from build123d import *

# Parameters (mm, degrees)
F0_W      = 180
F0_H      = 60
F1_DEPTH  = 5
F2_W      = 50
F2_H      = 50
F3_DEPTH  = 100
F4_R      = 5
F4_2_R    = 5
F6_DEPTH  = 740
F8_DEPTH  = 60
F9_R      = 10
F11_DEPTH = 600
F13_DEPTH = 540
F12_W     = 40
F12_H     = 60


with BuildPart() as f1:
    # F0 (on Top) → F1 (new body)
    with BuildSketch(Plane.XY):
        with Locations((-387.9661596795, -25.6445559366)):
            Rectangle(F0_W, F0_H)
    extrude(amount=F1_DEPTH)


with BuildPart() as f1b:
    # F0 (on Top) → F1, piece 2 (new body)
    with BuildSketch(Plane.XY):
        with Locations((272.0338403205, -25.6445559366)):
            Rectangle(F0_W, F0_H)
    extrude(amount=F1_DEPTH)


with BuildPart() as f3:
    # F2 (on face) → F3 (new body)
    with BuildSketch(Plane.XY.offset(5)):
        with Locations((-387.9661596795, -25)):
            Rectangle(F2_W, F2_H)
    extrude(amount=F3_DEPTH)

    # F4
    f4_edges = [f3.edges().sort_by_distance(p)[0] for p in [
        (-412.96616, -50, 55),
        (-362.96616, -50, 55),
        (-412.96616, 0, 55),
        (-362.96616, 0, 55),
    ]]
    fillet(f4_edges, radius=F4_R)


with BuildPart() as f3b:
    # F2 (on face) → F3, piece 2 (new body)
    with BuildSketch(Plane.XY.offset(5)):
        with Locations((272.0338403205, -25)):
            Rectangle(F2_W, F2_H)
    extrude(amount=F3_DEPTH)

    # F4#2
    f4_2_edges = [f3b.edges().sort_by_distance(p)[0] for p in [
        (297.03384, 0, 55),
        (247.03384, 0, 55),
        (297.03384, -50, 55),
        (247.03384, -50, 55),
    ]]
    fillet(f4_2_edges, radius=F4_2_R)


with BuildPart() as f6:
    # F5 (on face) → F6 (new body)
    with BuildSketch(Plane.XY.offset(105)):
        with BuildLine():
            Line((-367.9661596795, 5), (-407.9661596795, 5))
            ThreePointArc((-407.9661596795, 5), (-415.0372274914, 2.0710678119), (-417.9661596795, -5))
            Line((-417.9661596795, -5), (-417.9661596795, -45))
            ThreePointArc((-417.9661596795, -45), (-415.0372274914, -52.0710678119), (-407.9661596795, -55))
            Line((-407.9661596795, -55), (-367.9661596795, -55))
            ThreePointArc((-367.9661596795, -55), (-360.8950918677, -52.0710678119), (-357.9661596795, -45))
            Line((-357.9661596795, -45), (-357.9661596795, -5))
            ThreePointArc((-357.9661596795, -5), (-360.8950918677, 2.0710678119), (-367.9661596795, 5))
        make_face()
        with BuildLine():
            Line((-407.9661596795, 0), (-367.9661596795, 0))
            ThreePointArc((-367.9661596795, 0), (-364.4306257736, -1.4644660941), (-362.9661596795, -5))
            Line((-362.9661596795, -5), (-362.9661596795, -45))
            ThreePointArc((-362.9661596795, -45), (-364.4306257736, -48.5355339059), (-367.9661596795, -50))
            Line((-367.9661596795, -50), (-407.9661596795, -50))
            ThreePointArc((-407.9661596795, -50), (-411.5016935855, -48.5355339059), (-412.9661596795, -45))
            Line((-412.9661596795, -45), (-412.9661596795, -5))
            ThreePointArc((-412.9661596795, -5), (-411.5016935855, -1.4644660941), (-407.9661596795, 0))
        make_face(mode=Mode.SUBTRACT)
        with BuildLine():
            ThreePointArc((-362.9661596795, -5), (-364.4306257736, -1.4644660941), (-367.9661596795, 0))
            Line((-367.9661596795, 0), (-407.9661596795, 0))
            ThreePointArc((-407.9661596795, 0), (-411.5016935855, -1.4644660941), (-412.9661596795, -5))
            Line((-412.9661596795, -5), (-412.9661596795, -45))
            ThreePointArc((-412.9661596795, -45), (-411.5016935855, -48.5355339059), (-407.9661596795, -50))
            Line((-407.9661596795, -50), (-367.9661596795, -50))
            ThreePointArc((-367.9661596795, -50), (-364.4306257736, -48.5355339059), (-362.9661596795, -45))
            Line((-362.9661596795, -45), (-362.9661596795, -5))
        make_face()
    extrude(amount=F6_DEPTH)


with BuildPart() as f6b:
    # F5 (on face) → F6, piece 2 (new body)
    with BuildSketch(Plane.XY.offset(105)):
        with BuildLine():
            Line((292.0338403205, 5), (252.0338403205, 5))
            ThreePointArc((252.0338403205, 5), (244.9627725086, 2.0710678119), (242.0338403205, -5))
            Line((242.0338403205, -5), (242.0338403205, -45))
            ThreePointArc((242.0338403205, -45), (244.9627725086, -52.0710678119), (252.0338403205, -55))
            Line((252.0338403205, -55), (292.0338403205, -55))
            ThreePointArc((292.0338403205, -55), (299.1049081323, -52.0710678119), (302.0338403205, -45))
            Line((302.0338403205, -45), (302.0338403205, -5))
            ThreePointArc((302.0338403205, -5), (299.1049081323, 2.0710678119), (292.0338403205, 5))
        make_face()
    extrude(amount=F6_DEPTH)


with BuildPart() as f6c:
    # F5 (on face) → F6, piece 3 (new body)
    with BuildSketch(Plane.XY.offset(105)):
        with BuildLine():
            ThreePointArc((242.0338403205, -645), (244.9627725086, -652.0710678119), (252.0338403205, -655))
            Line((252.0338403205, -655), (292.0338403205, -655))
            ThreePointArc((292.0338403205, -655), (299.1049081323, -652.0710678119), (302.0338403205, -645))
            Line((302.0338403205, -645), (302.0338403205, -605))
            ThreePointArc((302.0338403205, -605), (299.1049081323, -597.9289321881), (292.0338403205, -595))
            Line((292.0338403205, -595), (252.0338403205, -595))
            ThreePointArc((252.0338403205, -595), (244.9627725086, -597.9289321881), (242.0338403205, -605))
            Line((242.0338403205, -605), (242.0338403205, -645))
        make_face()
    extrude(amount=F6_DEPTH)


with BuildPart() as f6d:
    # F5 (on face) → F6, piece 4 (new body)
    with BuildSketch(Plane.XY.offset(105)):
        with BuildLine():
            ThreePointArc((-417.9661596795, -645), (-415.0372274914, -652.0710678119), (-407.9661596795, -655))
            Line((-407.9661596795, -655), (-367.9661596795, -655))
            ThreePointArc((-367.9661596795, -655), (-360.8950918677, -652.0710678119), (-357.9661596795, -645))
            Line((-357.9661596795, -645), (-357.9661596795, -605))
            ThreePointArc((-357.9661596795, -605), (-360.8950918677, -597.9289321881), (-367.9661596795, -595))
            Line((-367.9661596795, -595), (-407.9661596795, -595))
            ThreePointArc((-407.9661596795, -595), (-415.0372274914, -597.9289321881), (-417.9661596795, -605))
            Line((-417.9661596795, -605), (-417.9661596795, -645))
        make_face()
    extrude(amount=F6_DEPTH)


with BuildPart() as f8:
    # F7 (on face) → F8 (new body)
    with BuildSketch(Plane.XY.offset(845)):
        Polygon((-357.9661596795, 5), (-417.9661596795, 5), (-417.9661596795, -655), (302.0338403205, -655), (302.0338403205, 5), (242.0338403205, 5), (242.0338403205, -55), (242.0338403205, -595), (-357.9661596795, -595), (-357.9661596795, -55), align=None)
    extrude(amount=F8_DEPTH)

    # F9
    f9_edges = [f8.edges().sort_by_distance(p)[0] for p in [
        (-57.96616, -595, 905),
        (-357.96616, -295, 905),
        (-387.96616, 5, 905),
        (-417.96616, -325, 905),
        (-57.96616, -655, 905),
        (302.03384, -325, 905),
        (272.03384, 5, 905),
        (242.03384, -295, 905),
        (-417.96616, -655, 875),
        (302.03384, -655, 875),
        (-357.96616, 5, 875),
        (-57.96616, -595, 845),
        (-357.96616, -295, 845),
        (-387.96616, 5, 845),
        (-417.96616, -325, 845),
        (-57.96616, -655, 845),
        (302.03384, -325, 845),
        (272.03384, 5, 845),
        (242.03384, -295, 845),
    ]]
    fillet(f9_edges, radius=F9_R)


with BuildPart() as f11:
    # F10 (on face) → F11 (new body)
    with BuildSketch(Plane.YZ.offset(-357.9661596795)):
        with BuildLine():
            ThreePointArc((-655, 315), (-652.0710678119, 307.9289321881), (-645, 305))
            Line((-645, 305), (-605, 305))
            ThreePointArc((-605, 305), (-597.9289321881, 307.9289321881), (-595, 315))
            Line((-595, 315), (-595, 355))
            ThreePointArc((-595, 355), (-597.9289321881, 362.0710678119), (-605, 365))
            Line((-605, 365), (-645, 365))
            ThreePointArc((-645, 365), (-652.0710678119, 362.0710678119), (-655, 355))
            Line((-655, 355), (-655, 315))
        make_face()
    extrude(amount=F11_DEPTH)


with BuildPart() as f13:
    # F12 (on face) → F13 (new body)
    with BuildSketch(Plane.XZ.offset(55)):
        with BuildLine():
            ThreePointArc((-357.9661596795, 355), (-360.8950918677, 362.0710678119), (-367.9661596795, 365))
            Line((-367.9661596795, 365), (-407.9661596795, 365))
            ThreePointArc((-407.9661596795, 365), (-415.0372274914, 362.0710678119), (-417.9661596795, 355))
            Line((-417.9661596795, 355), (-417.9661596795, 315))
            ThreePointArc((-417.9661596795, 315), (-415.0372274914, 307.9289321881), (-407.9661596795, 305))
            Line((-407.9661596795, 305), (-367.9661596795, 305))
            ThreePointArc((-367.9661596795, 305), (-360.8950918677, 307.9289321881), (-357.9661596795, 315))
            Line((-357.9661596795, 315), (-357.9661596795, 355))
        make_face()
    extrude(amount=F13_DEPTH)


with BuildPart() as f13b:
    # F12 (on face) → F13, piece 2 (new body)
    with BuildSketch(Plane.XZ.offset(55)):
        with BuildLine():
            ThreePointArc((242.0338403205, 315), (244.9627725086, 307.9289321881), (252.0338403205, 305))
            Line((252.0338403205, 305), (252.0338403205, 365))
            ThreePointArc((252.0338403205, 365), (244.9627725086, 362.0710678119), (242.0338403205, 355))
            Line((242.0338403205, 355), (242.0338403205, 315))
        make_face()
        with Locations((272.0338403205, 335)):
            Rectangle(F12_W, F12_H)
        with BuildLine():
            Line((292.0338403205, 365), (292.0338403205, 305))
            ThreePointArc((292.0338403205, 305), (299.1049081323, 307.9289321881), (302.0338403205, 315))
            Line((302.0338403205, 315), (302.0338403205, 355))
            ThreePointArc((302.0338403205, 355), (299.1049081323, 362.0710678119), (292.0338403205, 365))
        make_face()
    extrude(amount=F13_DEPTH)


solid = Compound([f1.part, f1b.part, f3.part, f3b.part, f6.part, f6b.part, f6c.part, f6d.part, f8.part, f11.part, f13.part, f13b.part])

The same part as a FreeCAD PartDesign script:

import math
import FreeCAD as App
import Part
import Sketcher
Q = App.Units.Quantity


def edges_at(feature, points):
    """Names of the edges that pass closest to the given points."""
    edges = feature.Shape.Edges
    near = lambda p: min(range(len(edges)), key=lambda i: edges[i].distToShape(Part.Vertex(*p))[0])
    return sorted({f"Edge{near(p) + 1}" for p in points})

doc = App.newDocument("Part")
body = doc.addObject("PartDesign::Body", "Body")

# Sketch on XY plane
sketch1 = doc.addObject("Sketcher::SketchObject", "Sketch")
body.addObject(sketch1)
sketch1.AttachmentSupport = (doc.XY_Plane, [""])
sketch1.MapMode = "FlatFace"
sketch1.addGeometry([
    Part.LineSegment(App.Vector(-478, 4, 0), App.Vector(-478, -56, 0)),
    Part.LineSegment(App.Vector(-478, -56, 0), App.Vector(-298, -56, 0)),
    Part.LineSegment(App.Vector(-298, -56, 0), App.Vector(-298, 4, 0)),
    Part.LineSegment(App.Vector(-298, 4, 0), App.Vector(-478, 4, 0)),
], False)
sketch1.addConstraint([
    Sketcher.Constraint("Coincident", 0, 2, 1, 1),
    Sketcher.Constraint("Coincident", 1, 2, 2, 1),
    Sketcher.Constraint("Coincident", 2, 2, 3, 1),
    Sketcher.Constraint("Coincident", 3, 2, 0, 1),
    Sketcher.Constraint("Vertical", 0),
    Sketcher.Constraint("Horizontal", 1),
    Sketcher.Constraint("Vertical", 2),
    Sketcher.Constraint("Horizontal", 3),
    Sketcher.Constraint("DistanceX", 1, 1, 1, 2, Q("180 mm")),
    Sketcher.Constraint("DistanceY", 0, 2, 0, 1, Q("60 mm")),
    Sketcher.Constraint("DistanceX", 0, 2, -1, 1, Q("477.96616 mm")),
    Sketcher.Constraint("DistanceY", 0, 2, -1, 1, Q("55.644556 mm")),
])
pad1 = doc.addObject("PartDesign::Pad", "Pad")
body.addObject(pad1)
pad1.Profile = sketch1
pad1.Length = 5
body2 = doc.addObject("PartDesign::Body", "Body001")

# Sketch on XY plane
sketch2 = doc.addObject("Sketcher::SketchObject", "Sketch001")
body2.addObject(sketch2)
sketch2.AttachmentSupport = (doc.getObject("XY_Plane001"), [""])
sketch2.MapMode = "FlatFace"
sketch2.addGeometry([
    Part.LineSegment(App.Vector(182, 4, 0), App.Vector(182, -56, 0)),
    Part.LineSegment(App.Vector(182, -56, 0), App.Vector(362, -56, 0)),
    Part.LineSegment(App.Vector(362, -56, 0), App.Vector(362, 4, 0)),
    Part.LineSegment(App.Vector(362, 4, 0), App.Vector(182, 4, 0)),
], False)
sketch2.addConstraint([
    Sketcher.Constraint("Coincident", 0, 2, 1, 1),
    Sketcher.Constraint("Coincident", 1, 2, 2, 1),
    Sketcher.Constraint("Coincident", 2, 2, 3, 1),
    Sketcher.Constraint("Coincident", 3, 2, 0, 1),
    Sketcher.Constraint("Vertical", 0),
    Sketcher.Constraint("Horizontal", 1),
    Sketcher.Constraint("Vertical", 2),
    Sketcher.Constraint("Horizontal", 3),
    Sketcher.Constraint("DistanceX", 1, 1, 1, 2, Q("180 mm")),
    Sketcher.Constraint("DistanceY", 0, 2, 0, 1, Q("60 mm")),
    Sketcher.Constraint("DistanceX", -1, 1, 0, 2, Q("182.03384 mm")),
    Sketcher.Constraint("DistanceY", 0, 2, -1, 1, Q("55.644556 mm")),
])
pad2 = doc.addObject("PartDesign::Pad", "Pad001")
body2.addObject(pad2)
pad2.Profile = sketch2
pad2.Length = 5
body3 = doc.addObject("PartDesign::Body", "Body002")

# Sketch on XY plane
sketch3 = doc.addObject("Sketcher::SketchObject", "Sketch002")
body3.addObject(sketch3)
sketch3.AttachmentSupport = (doc.getObject("XY_Plane002"), [""])
sketch3.MapMode = "FlatFace"
sketch3.AttachmentOffset = App.Placement(App.Vector(0, 0, 5), App.Rotation())
sketch3.addGeometry([
    Part.LineSegment(App.Vector(-413, 0, 0), App.Vector(-413, -50, 0)),
    Part.LineSegment(App.Vector(-413, -50, 0), App.Vector(-363, -50, 0)),
    Part.LineSegment(App.Vector(-363, -50, 0), App.Vector(-363, 0, 0)),
    Part.LineSegment(App.Vector(-363, 0, 0), App.Vector(-413, 0, 0)),
], False)
sketch3.addConstraint([
    Sketcher.Constraint("Coincident", 0, 2, 1, 1),
    Sketcher.Constraint("Coincident", 1, 2, 2, 1),
    Sketcher.Constraint("Coincident", 2, 2, 3, 1),
    Sketcher.Constraint("Coincident", 3, 2, 0, 1),
    Sketcher.Constraint("Vertical", 0),
    Sketcher.Constraint("Horizontal", 1),
    Sketcher.Constraint("Vertical", 2),
    Sketcher.Constraint("Horizontal", 3),
    Sketcher.Constraint("PointOnObject", 2, 2, -1),
    Sketcher.Constraint("Equal", 3, 0),
    Sketcher.Constraint("DistanceX", 1, 1, 1, 2, Q("50 mm")),
    Sketcher.Constraint("DistanceX", 0, 2, -1, 1, Q("412.96616 mm")),
])
pad3 = doc.addObject("PartDesign::Pad", "Pad002")
body3.addObject(pad3)
pad3.Profile = sketch3
pad3.Length = 100
doc.recompute()

fillet = doc.addObject("PartDesign::Fillet", "Fillet")
body3.addObject(fillet)
fillet.Base = (pad3, edges_at(pad3, [
    (-412.966, -50, 55),
    (-362.966, -50, 55),
    (-412.966, 0, 55),
    (-362.966, 0, 55),
]))
fillet.Radius = 5
body4 = doc.addObject("PartDesign::Body", "Body003")

# Sketch on XY plane
sketch4 = doc.addObject("Sketcher::SketchObject", "Sketch003")
body4.addObject(sketch4)
sketch4.AttachmentSupport = (doc.getObject("XY_Plane003"), [""])
sketch4.MapMode = "FlatFace"
sketch4.AttachmentOffset = App.Placement(App.Vector(0, 0, 5), App.Rotation())
sketch4.addGeometry([
    Part.LineSegment(App.Vector(247, 0, 0), App.Vector(247, -50, 0)),
    Part.LineSegment(App.Vector(247, -50, 0), App.Vector(297, -50, 0)),
    Part.LineSegment(App.Vector(297, -50, 0), App.Vector(297, 0, 0)),
    Part.LineSegment(App.Vector(297, 0, 0), App.Vector(247, 0, 0)),
], False)
sketch4.addConstraint([
    Sketcher.Constraint("Coincident", 0, 2, 1, 1),
    Sketcher.Constraint("Coincident", 1, 2, 2, 1),
    Sketcher.Constraint("Coincident", 2, 2, 3, 1),
    Sketcher.Constraint("Coincident", 3, 2, 0, 1),
    Sketcher.Constraint("Vertical", 0),
    Sketcher.Constraint("Horizontal", 1),
    Sketcher.Constraint("Vertical", 2),
    Sketcher.Constraint("Horizontal", 3),
    Sketcher.Constraint("PointOnObject", 2, 2, -1),
    Sketcher.Constraint("Equal", 3, 0),
    Sketcher.Constraint("DistanceX", 1, 1, 1, 2, Q("50 mm")),
    Sketcher.Constraint("DistanceX", -1, 1, 0, 2, Q("247.03384 mm")),
])
pad4 = doc.addObject("PartDesign::Pad", "Pad003")
body4.addObject(pad4)
pad4.Profile = sketch4
pad4.Length = 100
doc.recompute()

fillet2 = doc.addObject("PartDesign::Fillet", "Fillet001")
body4.addObject(fillet2)
fillet2.Base = (pad4, edges_at(pad4, [
    (297.034, 0, 55),
    (247.034, 0, 55),
    (297.034, -50, 55),
    (247.034, -50, 55),
]))
fillet2.Radius = 5
body5 = doc.addObject("PartDesign::Body", "Body004")

# Sketch on XY plane
sketch5 = doc.addObject("Sketcher::SketchObject", "Sketch004")
body5.addObject(sketch5)
sketch5.AttachmentSupport = (doc.getObject("XY_Plane004"), [""])
sketch5.MapMode = "FlatFace"
sketch5.AttachmentOffset = App.Placement(App.Vector(0, 0, 105), App.Rotation())
sketch5.addGeometry([
    Part.LineSegment(App.Vector(-368, 5, 0), App.Vector(-408, 5, 0)),  # 0
    Part.ArcOfCircle(Part.Circle(App.Vector(-408, -5, 0), App.Vector(0, 0, 1), 10), math.radians(90), math.radians(180)),  # 1
    Part.LineSegment(App.Vector(-418, -5, 0), App.Vector(-418, -45, 0)),  # 2
    Part.ArcOfCircle(Part.Circle(App.Vector(-408, -45, 0), App.Vector(0, 0, 1), 10), math.radians(180), math.radians(270)),  # 3
    Part.LineSegment(App.Vector(-408, -55, 0), App.Vector(-368, -55, 0)),  # 4
    Part.ArcOfCircle(Part.Circle(App.Vector(-368, -45, 0), App.Vector(0, 0, 1), 10), math.radians(-90), math.radians(0)),  # 5
    Part.LineSegment(App.Vector(-358, -45, 0), App.Vector(-358, -5, 0)),  # 6
    Part.ArcOfCircle(Part.Circle(App.Vector(-368, -5, 0), App.Vector(0, 0, 1), 10), math.radians(0), math.radians(90)),  # 7
], False)
sketch5.addConstraint([
    Sketcher.Constraint("Tangent", 0, 2, 1, 1),
    Sketcher.Constraint("Tangent", 1, 2, 2, 1),
    Sketcher.Constraint("Tangent", 2, 2, 3, 1),
    Sketcher.Constraint("Tangent", 3, 2, 4, 1),
    Sketcher.Constraint("Tangent", 4, 2, 5, 1),
    Sketcher.Constraint("Tangent", 5, 2, 6, 1),
    Sketcher.Constraint("Tangent", 6, 2, 7, 1),
    Sketcher.Constraint("Tangent", 7, 2, 0, 1),
    Sketcher.Constraint("Horizontal", 0),
    Sketcher.Constraint("Vertical", 2),
    Sketcher.Constraint("Horizontal", 4),
    Sketcher.Constraint("Vertical", 6),
    Sketcher.Constraint("Equal", 1, 3),
    Sketcher.Constraint("Equal", 3, 5),
    Sketcher.Constraint("Equal", 5, 7),
    Sketcher.Constraint("Equal", 4, 2),
    Sketcher.Constraint("Radius", 1, Q("10 mm")),
    Sketcher.Constraint("DistanceX", 0, 2, 0, 1, Q("40 mm")),
    Sketcher.Constraint("DistanceY", 1, 3, -1, 1, Q("5 mm")),
    Sketcher.Constraint("DistanceX", 1, 3, -1, 1, Q("407.96616 mm")),
])
pad5 = doc.addObject("PartDesign::Pad", "Pad004")
body5.addObject(pad5)
pad5.Profile = sketch5
pad5.Length = 740
body6 = doc.addObject("PartDesign::Body", "Body005")

# Sketch on XY plane
sketch6 = doc.addObject("Sketcher::SketchObject", "Sketch005")
body6.addObject(sketch6)
sketch6.AttachmentSupport = (doc.getObject("XY_Plane005"), [""])
sketch6.MapMode = "FlatFace"
sketch6.AttachmentOffset = App.Placement(App.Vector(0, 0, 105), App.Rotation())
sketch6.addGeometry([
    Part.LineSegment(App.Vector(292, 5, 0), App.Vector(252, 5, 0)),  # 0
    Part.ArcOfCircle(Part.Circle(App.Vector(252, -5, 0), App.Vector(0, 0, 1), 10), math.radians(90), math.radians(180)),  # 1
    Part.LineSegment(App.Vector(242, -5, 0), App.Vector(242, -45, 0)),  # 2
    Part.ArcOfCircle(Part.Circle(App.Vector(252, -45, 0), App.Vector(0, 0, 1), 10), math.radians(180), math.radians(270)),  # 3
    Part.LineSegment(App.Vector(252, -55, 0), App.Vector(292, -55, 0)),  # 4
    Part.ArcOfCircle(Part.Circle(App.Vector(292, -45, 0), App.Vector(0, 0, 1), 10), math.radians(-90), math.radians(0)),  # 5
    Part.LineSegment(App.Vector(302, -45, 0), App.Vector(302, -5, 0)),  # 6
    Part.ArcOfCircle(Part.Circle(App.Vector(292, -5, 0), App.Vector(0, 0, 1), 10), math.radians(0), math.radians(90)),  # 7
], False)
sketch6.addConstraint([
    Sketcher.Constraint("Tangent", 0, 2, 1, 1),
    Sketcher.Constraint("Tangent", 1, 2, 2, 1),
    Sketcher.Constraint("Tangent", 2, 2, 3, 1),
    Sketcher.Constraint("Tangent", 3, 2, 4, 1),
    Sketcher.Constraint("Tangent", 4, 2, 5, 1),
    Sketcher.Constraint("Tangent", 5, 2, 6, 1),
    Sketcher.Constraint("Tangent", 6, 2, 7, 1),
    Sketcher.Constraint("Tangent", 7, 2, 0, 1),
    Sketcher.Constraint("Horizontal", 0),
    Sketcher.Constraint("Vertical", 2),
    Sketcher.Constraint("Horizontal", 4),
    Sketcher.Constraint("Vertical", 6),
    Sketcher.Constraint("Equal", 1, 3),
    Sketcher.Constraint("Equal", 3, 5),
    Sketcher.Constraint("Equal", 5, 7),
    Sketcher.Constraint("Equal", 4, 2),
    Sketcher.Constraint("Radius", 1, Q("10 mm")),
    Sketcher.Constraint("DistanceX", 0, 2, 0, 1, Q("40 mm")),
    Sketcher.Constraint("DistanceY", 1, 3, -1, 1, Q("5 mm")),
    Sketcher.Constraint("DistanceX", -1, 1, 1, 3, Q("252.03384 mm")),
])
pad6 = doc.addObject("PartDesign::Pad", "Pad005")
body6.addObject(pad6)
pad6.Profile = sketch6
pad6.Length = 740
body7 = doc.addObject("PartDesign::Body", "Body006")

# Sketch on XY plane
sketch7 = doc.addObject("Sketcher::SketchObject", "Sketch006")
body7.addObject(sketch7)
sketch7.AttachmentSupport = (doc.getObject("XY_Plane006"), [""])
sketch7.MapMode = "FlatFace"
sketch7.AttachmentOffset = App.Placement(App.Vector(0, 0, 105), App.Rotation())
sketch7.addGeometry([
    Part.ArcOfCircle(Part.Circle(App.Vector(252, -645, 0), App.Vector(0, 0, 1), 10), math.radians(180), math.radians(270)),  # 0
    Part.LineSegment(App.Vector(252, -655, 0), App.Vector(292, -655, 0)),  # 1
    Part.ArcOfCircle(Part.Circle(App.Vector(292, -645, 0), App.Vector(0, 0, 1), 10), math.radians(-90), math.radians(0)),  # 2
    Part.LineSegment(App.Vector(302, -645, 0), App.Vector(302, -605, 0)),  # 3
    Part.ArcOfCircle(Part.Circle(App.Vector(292, -605, 0), App.Vector(0, 0, 1), 10), math.radians(0), math.radians(90)),  # 4
    Part.LineSegment(App.Vector(292, -595, 0), App.Vector(252, -595, 0)),  # 5
    Part.ArcOfCircle(Part.Circle(App.Vector(252, -605, 0), App.Vector(0, 0, 1), 10), math.radians(90), math.radians(180)),  # 6
    Part.LineSegment(App.Vector(242, -605, 0), App.Vector(242, -645, 0)),  # 7
], False)
sketch7.addConstraint([
    Sketcher.Constraint("Tangent", 0, 2, 1, 1),
    Sketcher.Constraint("Tangent", 1, 2, 2, 1),
    Sketcher.Constraint("Tangent", 2, 2, 3, 1),
    Sketcher.Constraint("Tangent", 3, 2, 4, 1),
    Sketcher.Constraint("Tangent", 4, 2, 5, 1),
    Sketcher.Constraint("Tangent", 5, 2, 6, 1),
    Sketcher.Constraint("Tangent", 6, 2, 7, 1),
    Sketcher.Constraint("Tangent", 7, 2, 0, 1),
    Sketcher.Constraint("Horizontal", 1),
    Sketcher.Constraint("Vertical", 3),
    Sketcher.Constraint("Horizontal", 5),
    Sketcher.Constraint("Vertical", 7),
    Sketcher.Constraint("Equal", 0, 2),
    Sketcher.Constraint("Equal", 2, 4),
    Sketcher.Constraint("Equal", 4, 6),
    Sketcher.Constraint("Equal", 5, 3),
    Sketcher.Constraint("Radius", 0, Q("10 mm")),
    Sketcher.Constraint("DistanceX", 1, 1, 1, 2, Q("40 mm")),
    Sketcher.Constraint("DistanceY", 0, 3, -1, 1, Q("645 mm")),
    Sketcher.Constraint("DistanceX", -1, 1, 0, 3, Q("252.03384 mm")),
])
pad7 = doc.addObject("PartDesign::Pad", "Pad006")
body7.addObject(pad7)
pad7.Profile = sketch7
pad7.Length = 740
body8 = doc.addObject("PartDesign::Body", "Body007")

# Sketch on XY plane
sketch8 = doc.addObject("Sketcher::SketchObject", "Sketch007")
body8.addObject(sketch8)
sketch8.AttachmentSupport = (doc.getObject("XY_Plane007"), [""])
sketch8.MapMode = "FlatFace"
sketch8.AttachmentOffset = App.Placement(App.Vector(0, 0, 105), App.Rotation())
sketch8.addGeometry([
    Part.ArcOfCircle(Part.Circle(App.Vector(-408, -645, 0), App.Vector(0, 0, 1), 10), math.radians(180), math.radians(270)),  # 0
    Part.LineSegment(App.Vector(-408, -655, 0), App.Vector(-368, -655, 0)),  # 1
    Part.ArcOfCircle(Part.Circle(App.Vector(-368, -645, 0), App.Vector(0, 0, 1), 10), math.radians(-90), math.radians(0)),  # 2
    Part.LineSegment(App.Vector(-358, -645, 0), App.Vector(-358, -605, 0)),  # 3
    Part.ArcOfCircle(Part.Circle(App.Vector(-368, -605, 0), App.Vector(0, 0, 1), 10), math.radians(0), math.radians(90)),  # 4
    Part.LineSegment(App.Vector(-368, -595, 0), App.Vector(-408, -595, 0)),  # 5
    Part.ArcOfCircle(Part.Circle(App.Vector(-408, -605, 0), App.Vector(0, 0, 1), 10), math.radians(90), math.radians(180)),  # 6
    Part.LineSegment(App.Vector(-418, -605, 0), App.Vector(-418, -645, 0)),  # 7
], False)
sketch8.addConstraint([
    Sketcher.Constraint("Tangent", 0, 2, 1, 1),
    Sketcher.Constraint("Tangent", 1, 2, 2, 1),
    Sketcher.Constraint("Tangent", 2, 2, 3, 1),
    Sketcher.Constraint("Tangent", 3, 2, 4, 1),
    Sketcher.Constraint("Tangent", 4, 2, 5, 1),
    Sketcher.Constraint("Tangent", 5, 2, 6, 1),
    Sketcher.Constraint("Tangent", 6, 2, 7, 1),
    Sketcher.Constraint("Tangent", 7, 2, 0, 1),
    Sketcher.Constraint("Horizontal", 1),
    Sketcher.Constraint("Vertical", 3),
    Sketcher.Constraint("Horizontal", 5),
    Sketcher.Constraint("Vertical", 7),
    Sketcher.Constraint("Equal", 0, 2),
    Sketcher.Constraint("Equal", 2, 4),
    Sketcher.Constraint("Equal", 4, 6),
    Sketcher.Constraint("Equal", 5, 3),
    Sketcher.Constraint("Radius", 0, Q("10 mm")),
    Sketcher.Constraint("DistanceX", 1, 1, 1, 2, Q("40 mm")),
    Sketcher.Constraint("DistanceY", 0, 3, -1, 1, Q("645 mm")),
    Sketcher.Constraint("DistanceX", 0, 3, -1, 1, Q("407.96616 mm")),
])
pad8 = doc.addObject("PartDesign::Pad", "Pad007")
body8.addObject(pad8)
pad8.Profile = sketch8
pad8.Length = 740
body9 = doc.addObject("PartDesign::Body", "Body008")

# Sketch on XY plane
sketch9 = doc.addObject("Sketcher::SketchObject", "Sketch008")
body9.addObject(sketch9)
sketch9.AttachmentSupport = (doc.getObject("XY_Plane008"), [""])
sketch9.MapMode = "FlatFace"
sketch9.AttachmentOffset = App.Placement(App.Vector(0, 0, 845), App.Rotation())
sketch9.addGeometry([
    Part.LineSegment(App.Vector(-358, 5, 0), App.Vector(-418, 5, 0)),  # 0
    Part.LineSegment(App.Vector(-418, 5, 0), App.Vector(-418, -655, 0)),  # 1
    Part.LineSegment(App.Vector(-418, -655, 0), App.Vector(302, -655, 0)),  # 2
    Part.LineSegment(App.Vector(302, -655, 0), App.Vector(302, 5, 0)),  # 3
    Part.LineSegment(App.Vector(302, 5, 0), App.Vector(242, 5, 0)),  # 4
    Part.LineSegment(App.Vector(242, 5, 0), App.Vector(242, -595, 0)),  # 5
    Part.LineSegment(App.Vector(242, -595, 0), App.Vector(-358, -595, 0)),  # 6
    Part.LineSegment(App.Vector(-358, -595, 0), App.Vector(-358, 5, 0)),  # 7
], False)
sketch9.addConstraint([
    Sketcher.Constraint("Coincident", 0, 2, 1, 1),
    Sketcher.Constraint("Coincident", 1, 2, 2, 1),
    Sketcher.Constraint("Coincident", 2, 2, 3, 1),
    Sketcher.Constraint("Coincident", 3, 2, 4, 1),
    Sketcher.Constraint("Coincident", 4, 2, 5, 1),
    Sketcher.Constraint("Coincident", 5, 2, 6, 1),
    Sketcher.Constraint("Coincident", 6, 2, 7, 1),
    Sketcher.Constraint("Coincident", 7, 2, 0, 1),
    Sketcher.Constraint("Horizontal", 0),
    Sketcher.Constraint("Vertical", 1),
    Sketcher.Constraint("Horizontal", 2),
    Sketcher.Constraint("Vertical", 3),
    Sketcher.Constraint("Horizontal", 4),
    Sketcher.Constraint("Vertical", 5),
    Sketcher.Constraint("Horizontal", 6),
    Sketcher.Constraint("Vertical", 7),
    Sketcher.Constraint("Horizontal", 0, 2, 3, 2),
    Sketcher.Constraint("Equal", 0, 4),
    Sketcher.Constraint("Equal", 6, 5),
    Sketcher.Constraint("DistanceX", 0, 2, 0, 1, Q("60 mm")),
    Sketcher.Constraint("DistanceX", 2, 1, 2, 2, Q("720 mm")),
    Sketcher.Constraint("DistanceY", 1, 2, 1, 1, Q("660 mm")),
    Sketcher.Constraint("DistanceY", -1, 1, 0, 2, Q("5 mm")),
    Sketcher.Constraint("DistanceX", 0, 2, -1, 1, Q("417.96616 mm")),
])
pad9 = doc.addObject("PartDesign::Pad", "Pad008")
body9.addObject(pad9)
pad9.Profile = sketch9
pad9.Length = 60
doc.recompute()

fillet3 = doc.addObject("PartDesign::Fillet", "Fillet002")
body9.addObject(fillet3)
fillet3.Base = (pad9, edges_at(pad9, [
    (-57.966, -595, 905),
    (-357.966, -295, 905),
    (-387.966, 5, 905),
    (-417.966, -325, 905),
    (-57.966, -655, 905),
    (302.034, -325, 905),
    (272.034, 5, 905),
    (242.034, -295, 905),
    (-417.966, -655, 875),
    (302.034, -655, 875),
    (-357.966, 5, 875),
    (-57.966, -595, 845),
    (-357.966, -295, 845),
    (-387.966, 5, 845),
    (-417.966, -325, 845),
    (-57.966, -655, 845),
    (302.034, -325, 845),
    (272.034, 5, 845),
    (242.034, -295, 845),
]))
fillet3.Radius = 10
body10 = doc.addObject("PartDesign::Body", "Body009")

# Sketch on YZ plane
sketch10 = doc.addObject("Sketcher::SketchObject", "Sketch009")
body10.addObject(sketch10)
sketch10.AttachmentSupport = (doc.getObject("YZ_Plane009"), [""])
sketch10.MapMode = "FlatFace"
sketch10.AttachmentOffset = App.Placement(App.Vector(0, 0, -357.96616), App.Rotation())
sketch10.addGeometry([
    Part.ArcOfCircle(Part.Circle(App.Vector(-645, 315, 0), App.Vector(0, 0, 1), 10), math.radians(180), math.radians(270)),  # 0
    Part.LineSegment(App.Vector(-645, 305, 0), App.Vector(-605, 305, 0)),  # 1
    Part.ArcOfCircle(Part.Circle(App.Vector(-605, 315, 0), App.Vector(0, 0, 1), 10), math.radians(-90), math.radians(0)),  # 2
    Part.LineSegment(App.Vector(-595, 315, 0), App.Vector(-595, 355, 0)),  # 3
    Part.ArcOfCircle(Part.Circle(App.Vector(-605, 355, 0), App.Vector(0, 0, 1), 10), math.radians(0), math.radians(90)),  # 4
    Part.LineSegment(App.Vector(-605, 365, 0), App.Vector(-645, 365, 0)),  # 5
    Part.ArcOfCircle(Part.Circle(App.Vector(-645, 355, 0), App.Vector(0, 0, 1), 10), math.radians(90), math.radians(180)),  # 6
    Part.LineSegment(App.Vector(-655, 355, 0), App.Vector(-655, 315, 0)),  # 7
], False)
sketch10.addConstraint([
    Sketcher.Constraint("Tangent", 0, 2, 1, 1),
    Sketcher.Constraint("Tangent", 1, 2, 2, 1),
    Sketcher.Constraint("Tangent", 2, 2, 3, 1),
    Sketcher.Constraint("Tangent", 3, 2, 4, 1),
    Sketcher.Constraint("Tangent", 4, 2, 5, 1),
    Sketcher.Constraint("Tangent", 5, 2, 6, 1),
    Sketcher.Constraint("Tangent", 6, 2, 7, 1),
    Sketcher.Constraint("Tangent", 7, 2, 0, 1),
    Sketcher.Constraint("Horizontal", 1),
    Sketcher.Constraint("Vertical", 3),
    Sketcher.Constraint("Horizontal", 5),
    Sketcher.Constraint("Vertical", 7),
    Sketcher.Constraint("Equal", 0, 2),
    Sketcher.Constraint("Equal", 2, 4),
    Sketcher.Constraint("Equal", 4, 6),
    Sketcher.Constraint("Equal", 5, 3),
    Sketcher.Constraint("Radius", 0, Q("10 mm")),
    Sketcher.Constraint("DistanceX", 1, 1, 1, 2, Q("40 mm")),
    Sketcher.Constraint("DistanceX", 0, 3, -1, 1, Q("645 mm")),
    Sketcher.Constraint("DistanceY", -1, 1, 0, 3, Q("315 mm")),
])
pad10 = doc.addObject("PartDesign::Pad", "Pad009")
body10.addObject(pad10)
pad10.Profile = sketch10
pad10.Length = 600
body11 = doc.addObject("PartDesign::Body", "Body010")

# Sketch on XZ plane
sketch11 = doc.addObject("Sketcher::SketchObject", "Sketch010")
body11.addObject(sketch11)
sketch11.AttachmentSupport = (doc.getObject("XZ_Plane010"), [""])
sketch11.MapMode = "FlatFace"
sketch11.AttachmentOffset = App.Placement(App.Vector(0, 0, 55), App.Rotation())
sketch11.addGeometry([
    Part.ArcOfCircle(Part.Circle(App.Vector(-368, 355, 0), App.Vector(0, 0, 1), 10), math.radians(0), math.radians(90)),  # 0
    Part.LineSegment(App.Vector(-368, 365, 0), App.Vector(-408, 365, 0)),  # 1
    Part.ArcOfCircle(Part.Circle(App.Vector(-408, 355, 0), App.Vector(0, 0, 1), 10), math.radians(90), math.radians(180)),  # 2
    Part.LineSegment(App.Vector(-418, 355, 0), App.Vector(-418, 315, 0)),  # 3
    Part.ArcOfCircle(Part.Circle(App.Vector(-408, 315, 0), App.Vector(0, 0, 1), 10), math.radians(180), math.radians(270)),  # 4
    Part.LineSegment(App.Vector(-408, 305, 0), App.Vector(-368, 305, 0)),  # 5
    Part.ArcOfCircle(Part.Circle(App.Vector(-368, 315, 0), App.Vector(0, 0, 1), 10), math.radians(-90), math.radians(0)),  # 6
    Part.LineSegment(App.Vector(-358, 315, 0), App.Vector(-358, 355, 0)),  # 7
], False)
sketch11.addConstraint([
    Sketcher.Constraint("Tangent", 0, 2, 1, 1),
    Sketcher.Constraint("Tangent", 1, 2, 2, 1),
    Sketcher.Constraint("Tangent", 2, 2, 3, 1),
    Sketcher.Constraint("Tangent", 3, 2, 4, 1),
    Sketcher.Constraint("Tangent", 4, 2, 5, 1),
    Sketcher.Constraint("Tangent", 5, 2, 6, 1),
    Sketcher.Constraint("Tangent", 6, 2, 7, 1),
    Sketcher.Constraint("Tangent", 7, 2, 0, 1),
    Sketcher.Constraint("Horizontal", 1),
    Sketcher.Constraint("Vertical", 3),
    Sketcher.Constraint("Horizontal", 5),
    Sketcher.Constraint("Vertical", 7),
    Sketcher.Constraint("Equal", 0, 2),
    Sketcher.Constraint("Equal", 2, 4),
    Sketcher.Constraint("Equal", 4, 6),
    Sketcher.Constraint("Equal", 5, 3),
    Sketcher.Constraint("Radius", 0, Q("10 mm")),
    Sketcher.Constraint("DistanceX", 1, 2, 1, 1, Q("40 mm")),
    Sketcher.Constraint("DistanceY", -1, 1, 0, 3, Q("355 mm")),
    Sketcher.Constraint("DistanceX", 0, 3, -1, 1, Q("367.96616 mm")),
])
pad11 = doc.addObject("PartDesign::Pad", "Pad010")
body11.addObject(pad11)
pad11.Profile = sketch11
pad11.Length = 540
body12 = doc.addObject("PartDesign::Body", "Body011")

# Sketch on XZ plane
sketch12 = doc.addObject("Sketcher::SketchObject", "Sketch011")
body12.addObject(sketch12)
sketch12.AttachmentSupport = (doc.getObject("XZ_Plane011"), [""])
sketch12.MapMode = "FlatFace"
sketch12.AttachmentOffset = App.Placement(App.Vector(0, 0, 55), App.Rotation())
sketch12.addGeometry([
    Part.ArcOfCircle(Part.Circle(App.Vector(252, 315, 0), App.Vector(0, 0, 1), 10), math.radians(180), math.radians(270)),  # 0
    Part.LineSegment(App.Vector(252, 305, 0), App.Vector(292, 305, 0)),  # 1
    Part.ArcOfCircle(Part.Circle(App.Vector(292, 315, 0), App.Vector(0, 0, 1), 10), math.radians(-90), math.radians(0)),  # 2
    Part.LineSegment(App.Vector(302, 315, 0), App.Vector(302, 355, 0)),  # 3
    Part.ArcOfCircle(Part.Circle(App.Vector(292, 355, 0), App.Vector(0, 0, 1), 10), math.radians(0), math.radians(90)),  # 4
    Part.LineSegment(App.Vector(292, 365, 0), App.Vector(252, 365, 0)),  # 5
    Part.ArcOfCircle(Part.Circle(App.Vector(252, 355, 0), App.Vector(0, 0, 1), 10), math.radians(90), math.radians(180)),  # 6
    Part.LineSegment(App.Vector(242, 355, 0), App.Vector(242, 315, 0)),  # 7
], False)
sketch12.addConstraint([
    Sketcher.Constraint("Tangent", 0, 2, 1, 1),
    Sketcher.Constraint("Tangent", 1, 2, 2, 1),
    Sketcher.Constraint("Tangent", 2, 2, 3, 1),
    Sketcher.Constraint("Tangent", 3, 2, 4, 1),
    Sketcher.Constraint("Tangent", 4, 2, 5, 1),
    Sketcher.Constraint("Tangent", 5, 2, 6, 1),
    Sketcher.Constraint("Tangent", 6, 2, 7, 1),
    Sketcher.Constraint("Tangent", 7, 2, 0, 1),
    Sketcher.Constraint("Horizontal", 1),
    Sketcher.Constraint("Vertical", 3),
    Sketcher.Constraint("Horizontal", 5),
    Sketcher.Constraint("Vertical", 7),
    Sketcher.Constraint("Equal", 0, 2),
    Sketcher.Constraint("Equal", 2, 4),
    Sketcher.Constraint("Equal", 4, 6),
    Sketcher.Constraint("Equal", 5, 3),
    Sketcher.Constraint("Radius", 0, Q("10 mm")),
    Sketcher.Constraint("DistanceX", 1, 1, 1, 2, Q("40 mm")),
    Sketcher.Constraint("DistanceY", -1, 1, 0, 3, Q("315 mm")),
    Sketcher.Constraint("DistanceX", -1, 1, 0, 3, Q("252.03384 mm")),
])
pad12 = doc.addObject("PartDesign::Pad", "Pad011")
body12.addObject(pad12)
pad12.Profile = sketch12
pad12.Length = 540

doc.recompute()
